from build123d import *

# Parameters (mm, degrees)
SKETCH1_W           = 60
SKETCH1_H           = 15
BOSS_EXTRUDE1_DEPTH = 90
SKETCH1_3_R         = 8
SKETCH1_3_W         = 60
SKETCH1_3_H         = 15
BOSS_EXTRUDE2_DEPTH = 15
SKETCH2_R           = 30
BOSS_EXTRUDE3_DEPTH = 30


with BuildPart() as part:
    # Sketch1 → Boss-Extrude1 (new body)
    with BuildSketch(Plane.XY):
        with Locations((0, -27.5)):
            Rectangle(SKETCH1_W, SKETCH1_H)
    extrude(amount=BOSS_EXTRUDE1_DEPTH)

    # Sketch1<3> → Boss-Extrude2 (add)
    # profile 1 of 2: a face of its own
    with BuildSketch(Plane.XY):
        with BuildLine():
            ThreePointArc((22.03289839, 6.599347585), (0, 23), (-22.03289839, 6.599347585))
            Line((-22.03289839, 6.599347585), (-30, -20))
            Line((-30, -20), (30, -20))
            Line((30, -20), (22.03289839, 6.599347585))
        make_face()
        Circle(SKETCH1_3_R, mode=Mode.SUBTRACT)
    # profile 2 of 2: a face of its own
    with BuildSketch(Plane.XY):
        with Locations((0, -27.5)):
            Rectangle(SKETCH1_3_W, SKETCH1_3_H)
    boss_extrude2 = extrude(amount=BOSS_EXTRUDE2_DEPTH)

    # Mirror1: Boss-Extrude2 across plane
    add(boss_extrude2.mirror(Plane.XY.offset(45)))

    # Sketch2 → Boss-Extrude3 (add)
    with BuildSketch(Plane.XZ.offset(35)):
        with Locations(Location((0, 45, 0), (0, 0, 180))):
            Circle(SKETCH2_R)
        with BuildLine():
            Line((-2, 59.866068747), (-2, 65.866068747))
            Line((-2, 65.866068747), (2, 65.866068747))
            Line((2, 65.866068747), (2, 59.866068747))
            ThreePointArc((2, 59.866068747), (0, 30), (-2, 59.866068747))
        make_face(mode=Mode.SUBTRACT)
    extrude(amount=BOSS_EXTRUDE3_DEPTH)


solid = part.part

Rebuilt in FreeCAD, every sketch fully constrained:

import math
import FreeCAD as App
import Part
import Sketcher
from FreeCAD import Vector
Q = App.Units.Quantity


def add_polygon(sketch, points):
    """Adds a closed chain of lines whose ends are joined by coincident constraints."""
    first, n = sketch.GeometryCount, len(points)
    for a, b in zip(points, points[1:] + points[:1]):
        sketch.addGeometry(Part.LineSegment(App.Vector(*a, 0), App.Vector(*b, 0)), False)
    for i in range(n):
        sketch.addConstraint(Sketcher.Constraint("Coincident", first + i, 2, first + (i + 1) % n, 1))

doc = App.newDocument("Part")
body = doc.addObject("PartDesign::Body", "Body")

# Sketch on XY plane
sketch1 = body.newObject("Sketcher::SketchObject", "Sketch")
sketch1.AttachmentSupport = (doc.getObject("XY_Plane"), [""])
sketch1.MapMode = "FlatFace"
add_polygon(sketch1, [(-30, -20), (-30, -35), (30, -35), (30, -20)])  # lines 0-3
sketch1.addConstraint(Sketcher.Constraint("Vertical", 0))
sketch1.addConstraint(Sketcher.Constraint("Horizontal", 1))
sketch1.addConstraint(Sketcher.Constraint("Vertical", 2))
sketch1.addConstraint(Sketcher.Constraint("Horizontal", 3))
sketch1.addConstraint(Sketcher.Constraint("DistanceX", 1, 1, 1, 2, Q("60 mm")))
sketch1.addConstraint(Sketcher.Constraint("DistanceY", 0, 2, 0, 1, Q("15 mm")))
sketch1.addConstraint(Sketcher.Constraint("DistanceX", 0, 2, -1, 1, Q("30 mm")))
sketch1.addConstraint(Sketcher.Constraint("DistanceY", 0, 2, -1, 1, Q("35 mm")))
pad1 = body.newObject("PartDesign::Pad", "Pad")
pad1.Profile = sketch1
pad1.Length = 90

# Sketch on XY plane
sketch2 = body.newObject("Sketcher::SketchObject", "Sketch001")
sketch2.AttachmentSupport = (doc.getObject("XY_Plane"), [""])
sketch2.MapMode = "FlatFace"
sketch2.addGeometry(Part.ArcOfCircle(Part.Circle(Vector(0, 0, 0), Vector(0, 0, 1), 23), math.radians(17), math.radians(163)), False)
sketch2.addGeometry(Part.LineSegment(Vector(-22, 7, 0), Vector(-30, -20, 0)), False)
sketch2.addGeometry(Part.LineSegment(Vector(-30, -20, 0), Vector(-30, -35, 0)), False)
sketch2.addGeometry(Part.LineSegment(Vector(-30, -35, 0), Vector(30, -35, 0)), False)
sketch2.addGeometry(Part.LineSegment(Vector(30, -35, 0), Vector(30, -20, 0)), False)
sketch2.addGeometry(Part.LineSegment(Vector(30, -20, 0), Vector(22, 7, 0)), False)
sketch2.addGeometry(Part.Circle(Vector(0, 0, 0), Vector(0, 0, 1), 8), False)
sketch2.addConstraint(Sketcher.Constraint("Tangent", 0, 2, 1, 1))
sketch2.addConstraint(Sketcher.Constraint("Coincident", 1, 2, 2, 1))
sketch2.addConstraint(Sketcher.Constraint("Coincident", 2, 2, 3, 1))
sketch2.addConstraint(Sketcher.Constraint("Coincident", 3, 2, 4, 1))
sketch2.addConstraint(Sketcher.Constraint("Coincident", 4, 2, 5, 1))
sketch2.addConstraint(Sketcher.Constraint("Tangent", 5, 2, 0, 1))
sketch2.addConstraint(Sketcher.Constraint("Vertical", 2))
sketch2.addConstraint(Sketcher.Constraint("Horizontal", 3))
sketch2.addConstraint(Sketcher.Constraint("Vertical", 4))
sketch2.addConstraint(Sketcher.Constraint("Coincident", 0, 3, -1, 1))
sketch2.addConstraint(Sketcher.Constraint("Coincident", 6, 3, -1, 1))
sketch2.addConstraint(Sketcher.Constraint("Symmetric", 1, 2, 4, 2, -2))
sketch2.addConstraint(Sketcher.Constraint("Diameter", 6, Q("16 mm")))
sketch2.addConstraint(Sketcher.Constraint("Radius", 0, Q("23 mm")))
sketch2.addConstraint(Sketcher.Constraint("DistanceX", 3, 1, 3, 2, Q("60 mm")))
sketch2.addConstraint(Sketcher.Constraint("DistanceY", 2, 2, 2, 1, Q("15 mm")))
sketch2.addConstraint(Sketcher.Constraint("DistanceY", 1, 2, -1, 1, Q("20 mm")))
pad2 = body.newObject("PartDesign::Pad", "Pad001")
pad2.Profile = sketch2
pad2.Length = 15
doc.recompute()

datumplane = body.newObject("PartDesign::Plane", "DatumPlane")
datumplane.AttachmentSupport = (doc.getObject("XY_Plane"), [""])
datumplane.MapMode = "FlatFace"
datumplane.AttachmentOffset = App.Placement(Vector(0, 0, 45), App.Rotation())
mirrored = body.newObject("PartDesign::Mirrored", "Mirrored")
mirrored.Originals = [pad2]
mirrored.MirrorPlane = (datumplane, [""])
body.Tip = mirrored

# Sketch on XZ plane
sketch3 = body.newObject("Sketcher::SketchObject", "Sketch002")
sketch3.AttachmentSupport = (doc.getObject("XZ_Plane"), [""])
sketch3.MapMode = "FlatFace"
sketch3.AttachmentOffset = App.Placement(Vector(0, 0, 35), App.Rotation())
sketch3.addGeometry(Part.Circle(Vector(0, 45, 0), Vector(0, 0, 1), 30), False)
sketch3.addGeometry(Part.ArcOfCircle(Part.Circle(Vector(0, 45, 0), Vector(0, 0, 1), 15), math.radians(98), math.radians(442)), False)
sketch3.addGeometry(Part.LineSegment(Vector(-2, 59.9, 0), Vector(-2, 65.9, 0)), False)
sketch3.addGeometry(Part.LineSegment(Vector(-2, 65.9, 0), Vector(2, 65.9, 0)), False)
sketch3.addGeometry(Part.LineSegment(Vector(2, 65.9, 0), Vector(2, 59.9, 0)), False)
sketch3.addConstraint(Sketcher.Constraint("Coincident", 1, 1, 2, 1))
sketch3.addConstraint(Sketcher.Constraint("Coincident", 2, 2, 3, 1))
sketch3.addConstraint(Sketcher.Constraint("Coincident", 3, 2, 4, 1))
sketch3.addConstraint(Sketcher.Constraint("Coincident", 4, 2, 1, 2))
sketch3.addConstraint(Sketcher.Constraint("Vertical", 2))
sketch3.addConstraint(Sketcher.Constraint("Horizontal", 3))
sketch3.addConstraint(Sketcher.Constraint("Vertical", 4))
sketch3.addConstraint(Sketcher.Constraint("Coincident", 1, 3, 0, 3))
sketch3.addConstraint(Sketcher.Constraint("Symmetric", 1, 1, 4, 2, -2))
sketch3.addConstraint(Sketcher.Constraint("Diameter", 0, Q("60 mm")))
sketch3.addConstraint(Sketcher.Constraint("Radius", 1, Q("15 mm")))
sketch3.addConstraint(Sketcher.Constraint("DistanceX", 3, 1, 3, 2, Q("4 mm")))
sketch3.addConstraint(Sketcher.Constraint("DistanceY", 2, 1, 2, 2, Q("6 mm")))
sketch3.addConstraint(Sketcher.Constraint("DistanceY", -1, 1, 0, 3, Q("45 mm")))
pad3 = body.newObject("PartDesign::Pad", "Pad002")
pad3.Profile = sketch3
pad3.Length = 30

doc.recompute()
